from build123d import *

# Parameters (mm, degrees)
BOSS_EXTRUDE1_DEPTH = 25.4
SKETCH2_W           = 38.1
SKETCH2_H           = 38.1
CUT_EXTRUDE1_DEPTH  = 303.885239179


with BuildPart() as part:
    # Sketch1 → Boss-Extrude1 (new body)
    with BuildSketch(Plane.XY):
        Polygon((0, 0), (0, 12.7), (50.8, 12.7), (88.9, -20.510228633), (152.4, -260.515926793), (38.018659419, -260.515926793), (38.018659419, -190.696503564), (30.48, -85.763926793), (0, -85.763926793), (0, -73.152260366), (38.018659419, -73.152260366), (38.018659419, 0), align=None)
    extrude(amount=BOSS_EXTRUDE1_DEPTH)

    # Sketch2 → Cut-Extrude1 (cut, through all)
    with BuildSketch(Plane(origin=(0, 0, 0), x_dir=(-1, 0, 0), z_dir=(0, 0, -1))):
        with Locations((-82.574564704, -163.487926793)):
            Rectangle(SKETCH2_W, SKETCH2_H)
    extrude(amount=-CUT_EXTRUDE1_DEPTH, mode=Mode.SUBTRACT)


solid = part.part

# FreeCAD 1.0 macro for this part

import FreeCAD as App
import Part
import Sketcher

V = App.Vector
Q = App.Units.Quantity

doc = App.newDocument("Part")
body = doc.addObject("PartDesign::Body", "Body")

# Sketch on XY plane
sketch1 = body.newObject("Sketcher::SketchObject", "Sketch")
sketch1.AttachmentSupport = (doc.getObject("XY_Plane"), [""])
sketch1.MapMode = "FlatFace"
sketch1.addGeometry(Part.LineSegment(V(0, 12.7, 0), V(0, 0, 0)), False)
sketch1.addGeometry(Part.LineSegment(V(0, 0, 0), V(38.018659, 0, 0)), False)
sketch1.addGeometry(Part.LineSegment(V(38.018659, 0, 0), V(38.018659, -73.15226, 0)), False)
sketch1.addGeometry(Part.LineSegment(V(38.018659, -73.15226, 0), V(0, -73.15226, 0)), False)
sketch1.addGeometry(Part.LineSegment(V(0, -73.15226, 0), V(0, -85.763927, 0)), False)
sketch1.addGeometry(Part.LineSegment(V(0, -85.763927, 0), V(30.48, -85.763927, 0)), False)
sketch1.addGeometry(Part.LineSegment(V(30.48, -85.763927, 0), V(38.018659, -190.696504, 0)), False)
sketch1.addGeometry(Part.LineSegment(V(38.018659, -190.696504, 0), V(38.018659, -260.515927, 0)), False)
sketch1.addGeometry(Part.LineSegment(V(38.018659, -260.515927, 0), V(152.4, -260.515927, 0)), False)
sketch1.addGeometry(Part.LineSegment(V(152.4, -260.515927, 0), V(88.9, -20.510229, 0)), False)
sketch1.addGeometry(Part.LineSegment(V(88.9, -20.510229, 0), V(50.8, 12.7, 0)), False)
sketch1.addGeometry(Part.LineSegment(V(50.8, 12.7, 0), V(0, 12.7, 0)), False)
sketch1.addConstraint(Sketcher.Constraint("Coincident", 0, 2, 1, 1))
sketch1.addConstraint(Sketcher.Constraint("Coincident", 1, 2, 2, 1))
sketch1.addConstraint(Sketcher.Constraint("Coincident", 2, 2, 3, 1))
sketch1.addConstraint(Sketcher.Constraint("Coincident", 3, 2, 4, 1))
sketch1.addConstraint(Sketcher.Constraint("Coincident", 4, 2, 5, 1))
sketch1.addConstraint(Sketcher.Constraint("Coincident", 5, 2, 6, 1))
sketch1.addConstraint(Sketcher.Constraint("Coincident", 6, 2, 7, 1))
sketch1.addConstraint(Sketcher.Constraint("Coincident", 7, 2, 8, 1))
sketch1.addConstraint(Sketcher.Constraint("Coincident", 8, 2, 9, 1))
sketch1.addConstraint(Sketcher.Constraint("Coincident", 9, 2, 10, 1))
sketch1.addConstraint(Sketcher.Constraint("Coincident", 10, 2, 11, 1))
sketch1.addConstraint(Sketcher.Constraint("Coincident", 11, 2, 0, 1))
sketch1.addConstraint(Sketcher.Constraint("Vertical", 0))
sketch1.addConstraint(Sketcher.Constraint("Horizontal", 1))
sketch1.addConstraint(Sketcher.Constraint("Vertical", 2))
sketch1.addConstraint(Sketcher.Constraint("Horizontal", 3))
sketch1.addConstraint(Sketcher.Constraint("Vertical", 4))
sketch1.addConstraint(Sketcher.Constraint("Horizontal", 5))
sketch1.addConstraint(Sketcher.Constraint("Vertical", 7))
sketch1.addConstraint(Sketcher.Constraint("Horizontal", 8))
sketch1.addConstraint(Sketcher.Constraint("Horizontal", 11))
sketch1.addConstraint(Sketcher.Constraint("Coincident", 0, 2, -1, 1))
sketch1.addConstraint(Sketcher.Constraint("PointOnObject", 3, 2, -2))
sketch1.addConstraint(Sketcher.Constraint("Vertical", 2, 2, 6, 2))
sketch1.addConstraint(Sketcher.Constraint("DistanceX", 11, 2, 11, 1, Q("2 in")))
sketch1.addConstraint(Sketcher.Constraint("DistanceX", 5, 1, 5, 2, Q("1.2 in")))
sketch1.addConstraint(Sketcher.Constraint("DistanceY", 0, 2, 0, 1, Q("0.5 in")))
sketch1.addConstraint(Sketcher.Constraint("DistanceX", -1, 1, 8, 2, Q("6 in")))
sketch1.addConstraint(Sketcher.Constraint("DistanceX", -1, 1, 9, 2, Q("3.5 in")))
sketch1.addConstraint(Sketcher.Constraint("DistanceY", 7, 2, 5, 2, Q("6.88 in")))
sketch1.addConstraint(Sketcher.Constraint("DistanceX", 1, 1, 1, 2, Q("38.018659 mm")))
sketch1.addConstraint(Sketcher.Constraint("DistanceY", 2, 2, 2, 1, Q("73.15226 mm")))
sketch1.addConstraint(Sketcher.Constraint("DistanceY", 5, 2, 9, 2, Q("65.253698 mm")))
sketch1.addConstraint(Sketcher.Constraint("Distance", 10, Q("50.542351 mm")))
sketch1.addConstraint(Sketcher.Constraint("DistanceY", 7, 2, 7, 1, Q("69.819423 mm")))
pad1 = body.newObject("PartDesign::Pad", "Pad")
pad1.Profile = sketch1
pad1.Length = Q("1 in")

# Sketch on XY plane
sketch2 = body.newObject("Sketcher::SketchObject", "Sketch001")
sketch2.AttachmentSupport = (doc.getObject("XY_Plane"), [""])
sketch2.MapMode = "FlatFace"
sketch2.addGeometry(Part.LineSegment(V(101.624565, -144.437927, 0), V(101.624565, -182.537927, 0)), False)
sketch2.addGeometry(Part.LineSegment(V(101.624565, -182.537927, 0), V(63.524565, -182.537927, 0)), False)
sketch2.addGeometry(Part.LineSegment(V(63.524565, -182.537927, 0), V(63.524565, -144.437927, 0)), False)
sketch2.addGeometry(Part.LineSegment(V(63.524565, -144.437927, 0), V(101.624565, -144.437927, 0)), False)
sketch2.addConstraint(Sketcher.Constraint("Coincident", 0, 2, 1, 1))
sketch2.addConstraint(Sketcher.Constraint("Coincident", 1, 2, 2, 1))
sketch2.addConstraint(Sketcher.Constraint("Coincident", 2, 2, 3, 1))
sketch2.addConstraint(Sketcher.Constraint("Coincident", 3, 2, 0, 1))
sketch2.addConstraint(Sketcher.Constraint("Vertical", 0))
sketch2.addConstraint(Sketcher.Constraint("Horizontal", 1))
sketch2.addConstraint(Sketcher.Constraint("Vertical", 2))
sketch2.addConstraint(Sketcher.Constraint("Horizontal", 3))
sketch2.addConstraint(Sketcher.Constraint("Equal", 3, 0))
sketch2.addConstraint(Sketcher.Constraint("DistanceX", 1, 2, 1, 1, Q("1.5 in")))
sketch2.addConstraint(Sketcher.Constraint("DistanceX", -1, 1, 0, 2, Q("101.624565 mm")))
sketch2.addConstraint(Sketcher.Constraint("DistanceY", 0, 2, -1, 1, Q("182.537927 mm")))
pocket1 = body.newObject("PartDesign::Pocket", "Pocket")
pocket1.Profile = sketch2
pocket1.Type = "ThroughAll"
pocket1.Reversed = True

doc.recompute()
